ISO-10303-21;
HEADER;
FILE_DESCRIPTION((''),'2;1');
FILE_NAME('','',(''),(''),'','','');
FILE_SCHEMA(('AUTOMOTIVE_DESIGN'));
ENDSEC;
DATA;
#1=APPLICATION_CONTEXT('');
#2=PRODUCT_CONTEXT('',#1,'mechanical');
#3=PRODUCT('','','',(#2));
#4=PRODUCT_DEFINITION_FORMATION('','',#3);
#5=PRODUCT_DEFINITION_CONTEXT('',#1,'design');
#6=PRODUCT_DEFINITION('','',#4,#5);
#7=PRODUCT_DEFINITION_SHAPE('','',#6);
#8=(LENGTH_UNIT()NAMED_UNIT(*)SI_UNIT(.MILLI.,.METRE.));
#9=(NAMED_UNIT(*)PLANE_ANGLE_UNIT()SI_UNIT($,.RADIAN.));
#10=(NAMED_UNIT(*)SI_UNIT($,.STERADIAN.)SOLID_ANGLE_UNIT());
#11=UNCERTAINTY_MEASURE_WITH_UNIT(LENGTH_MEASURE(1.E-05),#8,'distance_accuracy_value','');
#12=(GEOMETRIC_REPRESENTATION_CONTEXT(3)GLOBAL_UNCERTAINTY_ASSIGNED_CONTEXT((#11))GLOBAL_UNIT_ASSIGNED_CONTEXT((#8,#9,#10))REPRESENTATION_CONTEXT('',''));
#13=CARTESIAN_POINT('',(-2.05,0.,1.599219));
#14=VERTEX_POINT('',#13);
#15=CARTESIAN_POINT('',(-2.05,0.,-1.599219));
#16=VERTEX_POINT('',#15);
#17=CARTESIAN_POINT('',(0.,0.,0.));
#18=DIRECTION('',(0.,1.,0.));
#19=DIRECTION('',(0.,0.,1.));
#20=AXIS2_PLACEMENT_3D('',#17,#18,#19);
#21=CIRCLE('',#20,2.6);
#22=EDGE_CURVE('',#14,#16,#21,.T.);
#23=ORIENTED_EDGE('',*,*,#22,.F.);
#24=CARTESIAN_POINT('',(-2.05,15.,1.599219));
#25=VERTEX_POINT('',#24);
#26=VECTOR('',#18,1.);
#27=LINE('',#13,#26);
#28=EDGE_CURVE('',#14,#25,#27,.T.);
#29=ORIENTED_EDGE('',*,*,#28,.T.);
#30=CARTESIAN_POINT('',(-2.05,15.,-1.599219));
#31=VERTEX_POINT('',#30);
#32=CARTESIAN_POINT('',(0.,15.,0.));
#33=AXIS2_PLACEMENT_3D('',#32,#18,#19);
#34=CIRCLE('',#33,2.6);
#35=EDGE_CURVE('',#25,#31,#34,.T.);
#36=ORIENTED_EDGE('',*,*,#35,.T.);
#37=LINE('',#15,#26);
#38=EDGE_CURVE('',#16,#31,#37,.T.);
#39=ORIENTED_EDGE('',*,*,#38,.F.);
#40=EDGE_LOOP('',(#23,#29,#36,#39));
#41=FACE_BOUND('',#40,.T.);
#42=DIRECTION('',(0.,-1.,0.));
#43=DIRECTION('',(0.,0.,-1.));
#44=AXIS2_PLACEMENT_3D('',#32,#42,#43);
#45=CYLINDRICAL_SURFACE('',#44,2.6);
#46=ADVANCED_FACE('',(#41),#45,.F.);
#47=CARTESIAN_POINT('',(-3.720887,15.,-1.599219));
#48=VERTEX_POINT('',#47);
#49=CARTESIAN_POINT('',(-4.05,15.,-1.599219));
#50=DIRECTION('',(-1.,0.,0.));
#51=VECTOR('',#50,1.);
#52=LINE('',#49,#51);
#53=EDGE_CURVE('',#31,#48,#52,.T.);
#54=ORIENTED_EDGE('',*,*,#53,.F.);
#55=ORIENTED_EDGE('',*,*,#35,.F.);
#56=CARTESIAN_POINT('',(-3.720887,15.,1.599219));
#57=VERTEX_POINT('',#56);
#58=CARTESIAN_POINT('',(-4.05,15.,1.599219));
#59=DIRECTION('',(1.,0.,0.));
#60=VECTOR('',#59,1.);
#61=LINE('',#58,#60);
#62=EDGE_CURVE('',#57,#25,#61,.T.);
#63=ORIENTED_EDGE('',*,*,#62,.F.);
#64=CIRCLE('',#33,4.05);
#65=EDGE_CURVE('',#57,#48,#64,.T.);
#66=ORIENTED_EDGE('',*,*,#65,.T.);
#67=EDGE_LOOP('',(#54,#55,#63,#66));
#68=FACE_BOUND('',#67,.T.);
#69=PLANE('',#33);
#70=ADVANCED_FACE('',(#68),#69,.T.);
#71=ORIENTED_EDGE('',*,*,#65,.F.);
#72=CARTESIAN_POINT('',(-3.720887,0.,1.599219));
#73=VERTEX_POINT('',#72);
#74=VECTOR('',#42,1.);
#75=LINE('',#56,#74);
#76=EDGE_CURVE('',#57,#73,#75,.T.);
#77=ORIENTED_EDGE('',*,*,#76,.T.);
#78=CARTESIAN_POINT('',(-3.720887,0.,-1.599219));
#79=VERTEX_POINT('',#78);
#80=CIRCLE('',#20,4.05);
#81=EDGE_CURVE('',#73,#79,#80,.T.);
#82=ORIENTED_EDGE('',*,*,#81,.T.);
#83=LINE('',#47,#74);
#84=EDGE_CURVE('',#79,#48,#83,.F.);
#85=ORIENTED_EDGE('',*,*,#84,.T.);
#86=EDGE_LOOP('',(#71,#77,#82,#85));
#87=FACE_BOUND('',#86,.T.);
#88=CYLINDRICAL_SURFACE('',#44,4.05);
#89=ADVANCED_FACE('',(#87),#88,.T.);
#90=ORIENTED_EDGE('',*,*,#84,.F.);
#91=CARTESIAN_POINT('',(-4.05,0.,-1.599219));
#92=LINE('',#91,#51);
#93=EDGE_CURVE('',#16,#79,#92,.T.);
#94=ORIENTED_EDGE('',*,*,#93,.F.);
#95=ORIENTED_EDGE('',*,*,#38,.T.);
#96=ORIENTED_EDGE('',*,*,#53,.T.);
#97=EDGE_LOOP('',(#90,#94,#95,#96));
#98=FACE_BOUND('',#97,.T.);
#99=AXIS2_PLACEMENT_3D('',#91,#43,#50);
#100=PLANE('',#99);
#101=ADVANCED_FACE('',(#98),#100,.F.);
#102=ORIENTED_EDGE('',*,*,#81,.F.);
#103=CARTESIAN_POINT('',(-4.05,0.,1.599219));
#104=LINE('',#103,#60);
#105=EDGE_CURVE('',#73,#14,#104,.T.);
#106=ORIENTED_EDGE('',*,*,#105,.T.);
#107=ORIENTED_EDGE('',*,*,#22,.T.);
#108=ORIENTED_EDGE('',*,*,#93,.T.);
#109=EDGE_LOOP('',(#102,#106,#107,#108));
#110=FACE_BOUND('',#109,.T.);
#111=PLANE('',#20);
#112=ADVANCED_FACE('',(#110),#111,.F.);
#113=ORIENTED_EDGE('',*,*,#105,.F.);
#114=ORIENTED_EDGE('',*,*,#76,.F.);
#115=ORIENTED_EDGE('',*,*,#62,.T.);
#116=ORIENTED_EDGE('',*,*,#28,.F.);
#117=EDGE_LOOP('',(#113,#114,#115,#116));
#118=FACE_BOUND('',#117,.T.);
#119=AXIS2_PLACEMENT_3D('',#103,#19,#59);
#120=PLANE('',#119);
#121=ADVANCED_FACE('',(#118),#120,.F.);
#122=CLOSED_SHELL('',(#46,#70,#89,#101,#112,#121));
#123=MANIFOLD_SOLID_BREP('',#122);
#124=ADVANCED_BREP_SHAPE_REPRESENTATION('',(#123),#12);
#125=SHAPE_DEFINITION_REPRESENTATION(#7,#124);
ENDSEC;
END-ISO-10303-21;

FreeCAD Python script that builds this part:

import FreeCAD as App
import Part
import Sketcher

V = App.Vector
Q = App.Units.Quantity


def add_polygon(sketch, points):
    """Adds a closed chain of lines whose ends are joined by coincident constraints."""
    first, n = sketch.GeometryCount, len(points)
    for a, b in zip(points, points[1:] + points[:1]):
        sketch.addGeometry(Part.LineSegment(App.Vector(*a, 0), App.Vector(*b, 0)), False)
    for i in range(n):
        sketch.addConstraint(Sketcher.Constraint("Coincident", first + i, 2, first + (i + 1) % n, 1))

doc = App.newDocument("Part")
params = doc.addObject("Spreadsheet::Sheet", "Params")
for row, (alias, value) in enumerate([
    ("sketch1_diameter", "8.1 mm"),
    ("sketch1_diameter2", "5.2 mm"),
    ("pad1_length", "15 mm"),
    ("sketch2_width", "2 mm"),
    ("pocket1_length", "15 mm"),
], start=1):
    params.set(f"A{row}", alias)
    params.set(f"B{row}", "=" + value)
    params.setAlias(f"B{row}", alias)

body = doc.addObject("PartDesign::Body", "Body")

# Sketch on XZ plane
sketch1 = body.newObject("Sketcher::SketchObject", "Sketch")
sketch1.AttachmentSupport = (doc.getObject("XZ_Plane"), [""])
sketch1.MapMode = "FlatFace"
sketch1.addGeometry([
    Part.Circle(V(0, 0, 0), V(0, 0, 1), 4),
    Part.Circle(V(0, 0, 0), V(0, 0, 1), 2.6),
], False)
sketch1.addConstraint([
    Sketcher.Constraint("Coincident", 0, 3, -1, 1),
    Sketcher.Constraint("Coincident", 1, 3, -1, 1),
    Sketcher.Constraint("Diameter", 0, Q("8.1 mm")),
    Sketcher.Constraint("Diameter", 1, Q("5.2 mm")),
])
sketch1.setExpression("Constraints[2]", "Params.sketch1_diameter")
sketch1.setExpression("Constraints[3]", "Params.sketch1_diameter2")
pad1 = body.newObject("PartDesign::Pad", "Pad")
pad1.Profile = sketch1
pad1.setExpression("Length", "Params.pad1_length")
pad1.Reversed = True

# Sketch on XZ plane
sketch2 = body.newObject("Sketcher::SketchObject", "Sketch001")
sketch2.AttachmentSupport = (doc.getObject("XZ_Plane"), [""])
sketch2.MapMode = "FlatFace"
sketch2.AttachmentOffset = App.Placement(V(0, 0, -15), App.Rotation())
add_polygon(sketch2, [(-4, -1.6), (-4, 1.6), (-2, 1.6), (-2, -1.6)])  # lines 0-3
sketch2.addConstraint([
    Sketcher.Constraint("Vertical", 0),
    Sketcher.Constraint("Horizontal", 1),
    Sketcher.Constraint("Vertical", 2),
    Sketcher.Constraint("Horizontal", 3),
    Sketcher.Constraint("DistanceX", 1, 1, 1, 2, Q("2 mm")),
    Sketcher.Constraint("DistanceX", 0, 2, -1, 1, Q("4.05 mm")),
    Sketcher.Constraint("DistanceY", 0, 1, 0, 2, Q("3.198437 mm")),
    Sketcher.Constraint("DistanceY", -1, 1, 0, 2, Q("1.599219 mm")),
])
sketch2.setExpression("Constraints[8]", "Params.sketch2_width")
pocket1 = body.newObject("PartDesign::Pocket", "Pocket")
pocket1.Profile = sketch2
pocket1.setExpression("Length", "Params.pocket1_length")
pocket1.Reversed = True

doc.recompute()
